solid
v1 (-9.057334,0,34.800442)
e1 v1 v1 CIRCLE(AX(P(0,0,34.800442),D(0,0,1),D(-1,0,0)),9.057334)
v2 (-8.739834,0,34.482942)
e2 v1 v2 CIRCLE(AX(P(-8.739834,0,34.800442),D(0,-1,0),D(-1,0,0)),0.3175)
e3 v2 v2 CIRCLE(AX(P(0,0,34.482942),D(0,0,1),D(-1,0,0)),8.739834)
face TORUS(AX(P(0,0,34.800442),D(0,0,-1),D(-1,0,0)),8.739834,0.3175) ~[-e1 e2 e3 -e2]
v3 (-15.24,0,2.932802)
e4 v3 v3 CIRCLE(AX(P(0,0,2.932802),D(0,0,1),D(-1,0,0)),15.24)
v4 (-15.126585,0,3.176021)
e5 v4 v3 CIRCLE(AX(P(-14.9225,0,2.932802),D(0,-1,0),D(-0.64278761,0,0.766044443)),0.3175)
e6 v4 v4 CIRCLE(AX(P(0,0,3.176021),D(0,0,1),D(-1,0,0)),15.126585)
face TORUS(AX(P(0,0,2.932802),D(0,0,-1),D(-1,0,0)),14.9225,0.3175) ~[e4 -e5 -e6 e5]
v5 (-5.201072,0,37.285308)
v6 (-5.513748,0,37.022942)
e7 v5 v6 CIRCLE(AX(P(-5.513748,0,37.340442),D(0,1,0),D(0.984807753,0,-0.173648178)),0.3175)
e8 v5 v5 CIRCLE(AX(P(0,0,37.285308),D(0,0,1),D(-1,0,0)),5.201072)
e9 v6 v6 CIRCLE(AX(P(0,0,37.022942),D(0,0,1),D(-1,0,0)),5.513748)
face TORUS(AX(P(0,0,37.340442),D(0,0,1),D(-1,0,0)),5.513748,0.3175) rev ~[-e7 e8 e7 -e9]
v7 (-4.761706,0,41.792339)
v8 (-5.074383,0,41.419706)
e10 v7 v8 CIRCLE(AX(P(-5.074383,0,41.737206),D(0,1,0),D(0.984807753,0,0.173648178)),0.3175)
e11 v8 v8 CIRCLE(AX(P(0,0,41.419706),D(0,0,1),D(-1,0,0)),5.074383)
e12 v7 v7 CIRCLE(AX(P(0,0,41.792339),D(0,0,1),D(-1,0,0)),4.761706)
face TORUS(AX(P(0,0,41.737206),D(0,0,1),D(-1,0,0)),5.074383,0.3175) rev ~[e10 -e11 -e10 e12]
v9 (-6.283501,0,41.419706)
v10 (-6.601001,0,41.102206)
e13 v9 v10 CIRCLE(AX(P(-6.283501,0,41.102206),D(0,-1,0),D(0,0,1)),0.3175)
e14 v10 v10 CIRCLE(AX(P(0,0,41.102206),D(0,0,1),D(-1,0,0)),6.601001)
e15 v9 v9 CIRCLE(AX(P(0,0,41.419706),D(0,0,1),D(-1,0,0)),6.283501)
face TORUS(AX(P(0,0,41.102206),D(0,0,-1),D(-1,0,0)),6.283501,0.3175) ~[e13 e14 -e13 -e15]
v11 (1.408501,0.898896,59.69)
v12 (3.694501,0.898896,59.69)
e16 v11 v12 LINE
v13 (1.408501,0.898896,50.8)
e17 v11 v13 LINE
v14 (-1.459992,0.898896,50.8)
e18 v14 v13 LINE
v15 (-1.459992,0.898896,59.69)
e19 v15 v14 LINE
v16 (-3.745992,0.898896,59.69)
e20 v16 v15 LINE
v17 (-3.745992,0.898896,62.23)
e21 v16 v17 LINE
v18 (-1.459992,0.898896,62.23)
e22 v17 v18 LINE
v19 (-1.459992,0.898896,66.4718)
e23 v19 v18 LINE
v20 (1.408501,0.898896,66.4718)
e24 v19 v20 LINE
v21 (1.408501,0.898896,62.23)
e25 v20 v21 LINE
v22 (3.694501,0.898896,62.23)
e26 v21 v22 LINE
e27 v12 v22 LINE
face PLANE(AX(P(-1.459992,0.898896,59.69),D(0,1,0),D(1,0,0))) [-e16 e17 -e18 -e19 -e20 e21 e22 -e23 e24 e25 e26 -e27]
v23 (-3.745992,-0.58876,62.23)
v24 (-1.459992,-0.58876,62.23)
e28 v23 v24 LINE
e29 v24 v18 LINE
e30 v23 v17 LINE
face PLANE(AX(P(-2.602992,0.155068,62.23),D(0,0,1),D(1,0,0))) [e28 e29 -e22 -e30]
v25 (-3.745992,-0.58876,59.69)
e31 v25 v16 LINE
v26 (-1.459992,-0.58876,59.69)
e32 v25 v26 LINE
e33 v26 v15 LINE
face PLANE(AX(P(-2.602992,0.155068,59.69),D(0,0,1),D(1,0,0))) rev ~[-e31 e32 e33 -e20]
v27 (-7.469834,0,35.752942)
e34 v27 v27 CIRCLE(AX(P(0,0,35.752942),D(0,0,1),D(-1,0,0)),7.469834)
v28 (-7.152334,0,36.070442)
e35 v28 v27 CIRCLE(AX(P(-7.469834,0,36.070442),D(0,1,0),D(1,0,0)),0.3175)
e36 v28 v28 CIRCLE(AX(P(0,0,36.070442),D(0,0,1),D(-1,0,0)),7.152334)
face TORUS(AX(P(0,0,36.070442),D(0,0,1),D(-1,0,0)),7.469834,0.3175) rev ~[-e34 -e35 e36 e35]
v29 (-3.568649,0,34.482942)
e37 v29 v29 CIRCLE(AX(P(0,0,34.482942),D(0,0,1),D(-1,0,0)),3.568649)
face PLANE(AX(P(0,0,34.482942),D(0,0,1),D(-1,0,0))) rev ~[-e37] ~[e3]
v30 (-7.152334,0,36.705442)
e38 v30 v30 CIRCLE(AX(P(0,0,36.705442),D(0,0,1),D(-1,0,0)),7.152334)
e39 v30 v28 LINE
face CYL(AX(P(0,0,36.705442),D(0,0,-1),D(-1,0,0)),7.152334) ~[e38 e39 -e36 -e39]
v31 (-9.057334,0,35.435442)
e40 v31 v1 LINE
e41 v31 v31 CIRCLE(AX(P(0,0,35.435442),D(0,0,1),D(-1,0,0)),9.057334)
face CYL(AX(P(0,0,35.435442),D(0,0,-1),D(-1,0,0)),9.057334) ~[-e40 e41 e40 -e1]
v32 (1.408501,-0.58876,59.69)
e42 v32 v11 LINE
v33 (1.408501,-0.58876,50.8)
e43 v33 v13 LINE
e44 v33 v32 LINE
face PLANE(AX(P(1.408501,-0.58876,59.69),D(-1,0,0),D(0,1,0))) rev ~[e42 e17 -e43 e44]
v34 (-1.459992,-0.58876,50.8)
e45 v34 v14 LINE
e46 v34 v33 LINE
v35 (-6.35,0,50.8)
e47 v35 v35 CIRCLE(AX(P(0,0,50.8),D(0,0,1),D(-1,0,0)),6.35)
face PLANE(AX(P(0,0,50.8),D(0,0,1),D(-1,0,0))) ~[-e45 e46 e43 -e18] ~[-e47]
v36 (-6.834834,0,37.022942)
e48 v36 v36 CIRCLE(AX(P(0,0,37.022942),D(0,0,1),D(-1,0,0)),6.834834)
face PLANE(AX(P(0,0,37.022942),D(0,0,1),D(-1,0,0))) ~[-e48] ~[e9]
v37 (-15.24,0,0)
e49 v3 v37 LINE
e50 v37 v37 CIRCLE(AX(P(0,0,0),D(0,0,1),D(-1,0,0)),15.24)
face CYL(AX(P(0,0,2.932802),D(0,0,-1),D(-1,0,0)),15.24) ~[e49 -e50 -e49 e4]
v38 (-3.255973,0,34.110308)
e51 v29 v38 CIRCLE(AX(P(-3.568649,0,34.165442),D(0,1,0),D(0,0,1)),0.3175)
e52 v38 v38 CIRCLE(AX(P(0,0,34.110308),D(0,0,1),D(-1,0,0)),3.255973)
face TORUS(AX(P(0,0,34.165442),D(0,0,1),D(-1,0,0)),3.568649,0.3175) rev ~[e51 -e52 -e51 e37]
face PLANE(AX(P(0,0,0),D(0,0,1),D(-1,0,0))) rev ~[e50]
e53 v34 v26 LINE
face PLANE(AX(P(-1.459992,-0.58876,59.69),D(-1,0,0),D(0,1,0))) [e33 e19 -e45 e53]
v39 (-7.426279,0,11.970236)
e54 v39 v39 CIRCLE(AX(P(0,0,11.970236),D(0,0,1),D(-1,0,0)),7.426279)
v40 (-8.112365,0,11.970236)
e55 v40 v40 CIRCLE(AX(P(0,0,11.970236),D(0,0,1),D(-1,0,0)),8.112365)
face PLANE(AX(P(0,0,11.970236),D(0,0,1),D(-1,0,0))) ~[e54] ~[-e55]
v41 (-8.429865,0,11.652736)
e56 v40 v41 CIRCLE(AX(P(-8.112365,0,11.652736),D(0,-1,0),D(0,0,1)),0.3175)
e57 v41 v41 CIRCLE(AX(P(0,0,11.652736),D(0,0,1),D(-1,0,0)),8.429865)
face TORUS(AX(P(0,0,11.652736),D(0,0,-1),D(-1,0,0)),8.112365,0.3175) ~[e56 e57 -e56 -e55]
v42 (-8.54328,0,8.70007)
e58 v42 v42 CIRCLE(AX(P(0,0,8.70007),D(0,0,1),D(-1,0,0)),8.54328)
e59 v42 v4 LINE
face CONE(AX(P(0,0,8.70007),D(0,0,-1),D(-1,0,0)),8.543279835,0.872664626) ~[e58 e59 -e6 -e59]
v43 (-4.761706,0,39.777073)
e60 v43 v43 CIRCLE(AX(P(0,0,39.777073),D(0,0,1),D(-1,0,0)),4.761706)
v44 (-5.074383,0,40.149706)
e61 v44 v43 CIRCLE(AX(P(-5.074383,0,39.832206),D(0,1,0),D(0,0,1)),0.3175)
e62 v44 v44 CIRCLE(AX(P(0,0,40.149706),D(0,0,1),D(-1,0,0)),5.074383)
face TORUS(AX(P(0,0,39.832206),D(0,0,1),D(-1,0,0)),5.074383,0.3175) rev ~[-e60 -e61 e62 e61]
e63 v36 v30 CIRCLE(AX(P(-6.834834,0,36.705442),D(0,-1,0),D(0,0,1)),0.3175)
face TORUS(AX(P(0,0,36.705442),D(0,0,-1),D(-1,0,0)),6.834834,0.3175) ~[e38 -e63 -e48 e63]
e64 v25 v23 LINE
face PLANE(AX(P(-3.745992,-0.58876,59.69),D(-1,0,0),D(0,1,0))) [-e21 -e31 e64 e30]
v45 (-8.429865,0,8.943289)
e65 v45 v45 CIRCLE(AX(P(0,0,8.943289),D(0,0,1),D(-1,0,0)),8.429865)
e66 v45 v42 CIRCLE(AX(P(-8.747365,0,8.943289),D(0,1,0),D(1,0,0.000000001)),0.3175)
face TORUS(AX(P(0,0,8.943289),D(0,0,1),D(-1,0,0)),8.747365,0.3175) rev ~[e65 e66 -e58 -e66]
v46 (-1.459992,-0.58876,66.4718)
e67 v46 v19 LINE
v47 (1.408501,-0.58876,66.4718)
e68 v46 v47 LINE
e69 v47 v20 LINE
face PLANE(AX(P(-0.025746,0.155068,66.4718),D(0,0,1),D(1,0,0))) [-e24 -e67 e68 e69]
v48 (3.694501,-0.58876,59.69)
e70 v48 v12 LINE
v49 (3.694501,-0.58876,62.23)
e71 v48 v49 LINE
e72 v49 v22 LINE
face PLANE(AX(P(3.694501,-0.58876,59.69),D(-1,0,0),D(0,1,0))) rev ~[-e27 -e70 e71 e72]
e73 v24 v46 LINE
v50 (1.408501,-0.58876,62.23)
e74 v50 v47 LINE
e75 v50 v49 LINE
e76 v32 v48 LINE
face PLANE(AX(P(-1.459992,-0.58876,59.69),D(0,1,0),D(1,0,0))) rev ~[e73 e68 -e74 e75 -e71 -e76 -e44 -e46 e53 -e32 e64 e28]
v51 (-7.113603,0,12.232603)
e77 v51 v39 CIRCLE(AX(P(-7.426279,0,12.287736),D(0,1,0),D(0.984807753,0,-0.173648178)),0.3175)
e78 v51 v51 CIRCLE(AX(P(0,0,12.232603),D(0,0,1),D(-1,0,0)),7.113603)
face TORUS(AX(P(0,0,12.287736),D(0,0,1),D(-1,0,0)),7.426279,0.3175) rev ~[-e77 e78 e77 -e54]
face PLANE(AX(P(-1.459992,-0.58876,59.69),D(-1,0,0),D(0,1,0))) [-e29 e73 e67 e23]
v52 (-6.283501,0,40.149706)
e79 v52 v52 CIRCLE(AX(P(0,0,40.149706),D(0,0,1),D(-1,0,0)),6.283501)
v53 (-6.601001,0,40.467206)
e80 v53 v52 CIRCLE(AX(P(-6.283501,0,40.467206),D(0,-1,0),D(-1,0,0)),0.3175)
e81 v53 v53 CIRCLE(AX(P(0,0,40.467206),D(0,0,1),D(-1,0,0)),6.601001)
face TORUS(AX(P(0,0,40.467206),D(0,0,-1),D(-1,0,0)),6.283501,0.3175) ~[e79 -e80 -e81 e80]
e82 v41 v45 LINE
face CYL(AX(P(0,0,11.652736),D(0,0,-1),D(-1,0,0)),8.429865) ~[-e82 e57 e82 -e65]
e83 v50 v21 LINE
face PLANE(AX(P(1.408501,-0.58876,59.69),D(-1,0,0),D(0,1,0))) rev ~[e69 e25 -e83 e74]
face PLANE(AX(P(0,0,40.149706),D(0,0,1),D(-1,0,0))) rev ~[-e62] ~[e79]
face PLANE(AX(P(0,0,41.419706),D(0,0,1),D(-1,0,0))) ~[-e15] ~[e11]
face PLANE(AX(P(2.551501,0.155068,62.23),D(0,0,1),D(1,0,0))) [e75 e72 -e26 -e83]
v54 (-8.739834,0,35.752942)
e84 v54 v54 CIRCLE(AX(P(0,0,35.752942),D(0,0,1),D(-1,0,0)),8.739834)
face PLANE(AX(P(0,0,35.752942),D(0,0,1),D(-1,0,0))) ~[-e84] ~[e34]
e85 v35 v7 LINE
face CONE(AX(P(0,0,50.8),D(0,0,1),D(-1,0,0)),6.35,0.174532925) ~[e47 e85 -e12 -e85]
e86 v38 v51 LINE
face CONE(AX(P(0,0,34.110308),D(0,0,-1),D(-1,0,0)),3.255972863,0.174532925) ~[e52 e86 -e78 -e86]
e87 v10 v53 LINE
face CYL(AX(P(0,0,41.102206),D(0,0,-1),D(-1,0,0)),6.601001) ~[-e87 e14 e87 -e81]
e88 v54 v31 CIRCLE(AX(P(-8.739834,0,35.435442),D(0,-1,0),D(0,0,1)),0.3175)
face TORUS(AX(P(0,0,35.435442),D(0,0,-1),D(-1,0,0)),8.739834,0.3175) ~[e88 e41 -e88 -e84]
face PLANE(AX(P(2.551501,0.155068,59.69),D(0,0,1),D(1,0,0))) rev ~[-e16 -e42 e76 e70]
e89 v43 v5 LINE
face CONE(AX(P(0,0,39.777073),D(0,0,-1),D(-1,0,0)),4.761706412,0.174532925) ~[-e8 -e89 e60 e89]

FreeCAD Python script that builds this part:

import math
import FreeCAD as App
import Part
import Sketcher

V = App.Vector
Q = App.Units.Quantity


def add_polygon(sketch, points):
    """Adds a closed chain of lines whose ends are joined by coincident constraints."""
    first, n = sketch.GeometryCount, len(points)
    for a, b in zip(points, points[1:] + points[:1]):
        sketch.addGeometry(Part.LineSegment(App.Vector(*a, 0), App.Vector(*b, 0)), False)
    for i in range(n):
        sketch.addConstraint(Sketcher.Constraint("Coincident", first + i, 2, first + (i + 1) % n, 1))

doc = App.newDocument("Part")
body = doc.addObject("PartDesign::Body", "Body")

# Sketch on XZ plane
sketch1 = body.newObject("Sketcher::SketchObject", "Sketch")
sketch1.AttachmentSupport = (doc.getObject("XZ_Plane"), [""])
sketch1.MapMode = "FlatFace"
sketch1.addGeometry(Part.LineSegment(V(-15.24, 0, 0), V(0, 0, 0)), False)
sketch1.addGeometry(Part.LineSegment(V(0, 0, 0), V(0, 50.8, 0)), False)
sketch1.addGeometry(Part.LineSegment(V(0, 50.8, 0), V(-6.35, 50.8, 0)), False)
sketch1.addGeometry(Part.LineSegment(V(-6.35, 50.8, 0), V(-4.76, 41.79, 0)), False)
sketch1.addGeometry(Part.ArcOfCircle(Part.Circle(V(-5.07, 41.74, 0), V(0, 0, 1), 0.32), math.radians(-90), math.radians(10)), False)
sketch1.addGeometry(Part.LineSegment(V(-5.07, 41.42, 0), V(-6.28, 41.42, 0)), False)
sketch1.addGeometry(Part.ArcOfCircle(Part.Circle(V(-6.28, 41.1, 0), V(0, 0, 1), 0.32), math.radians(90), math.radians(180)), False)
sketch1.addGeometry(Part.LineSegment(V(-6.6, 41.1, 0), V(-6.6, 40.47, 0)), False)
sketch1.addGeometry(Part.ArcOfCircle(Part.Circle(V(-6.28, 40.47, 0), V(0, 0, 1), 0.32), math.radians(180), math.radians(270)), False)
sketch1.addGeometry(Part.LineSegment(V(-6.28, 40.15, 0), V(-5.07, 40.15, 0)), False)
sketch1.addGeometry(Part.ArcOfCircle(Part.Circle(V(-5.07, 39.83, 0), V(0, 0, 1), 0.32), math.radians(-10), math.radians(90)), False)
sketch1.addGeometry(Part.LineSegment(V(-4.76, 39.78, 0), V(-5.2, 37.29, 0)), False)
sketch1.addGeometry(Part.ArcOfCircle(Part.Circle(V(-5.51, 37.34, 0), V(0, 0, 1), 0.32), math.radians(-90), math.radians(-10)), False)
sketch1.addGeometry(Part.LineSegment(V(-5.51, 37.02, 0), V(-6.83, 37.02, 0)), False)
sketch1.addGeometry(Part.ArcOfCircle(Part.Circle(V(-6.83, 36.71, 0), V(0, 0, 1), 0.32), math.radians(90), math.radians(180)), False)
sketch1.addGeometry(Part.LineSegment(V(-7.15, 36.71, 0), V(-7.15, 36.07, 0)), False)
sketch1.addGeometry(Part.ArcOfCircle(Part.Circle(V(-7.47, 36.07, 0), V(0, 0, 1), 0.32), math.radians(-90), math.radians(0)), False)
sketch1.addGeometry(Part.LineSegment(V(-7.47, 35.75, 0), V(-8.74, 35.75, 0)), False)
sketch1.addGeometry(Part.ArcOfCircle(Part.Circle(V(-8.74, 35.44, 0), V(0, 0, 1), 0.32), math.radians(90), math.radians(180)), False)
sketch1.addGeometry(Part.LineSegment(V(-9.06, 35.44, 0), V(-9.06, 34.8, 0)), False)
sketch1.addGeometry(Part.ArcOfCircle(Part.Circle(V(-8.74, 34.8, 0), V(0, 0, 1), 0.32), math.radians(180), math.radians(270)), False)
sketch1.addGeometry(Part.LineSegment(V(-8.74, 34.48, 0), V(-3.57, 34.48, 0)), False)
sketch1.addGeometry(Part.ArcOfCircle(Part.Circle(V(-3.57, 34.17, 0), V(0, 0, 1), 0.32), math.radians(-10), math.radians(90)), False)
sketch1.addGeometry(Part.LineSegment(V(-3.26, 34.11, 0), V(-7.11, 12.23, 0)), False)
sketch1.addGeometry(Part.ArcOfCircle(Part.Circle(V(-7.43, 12.29, 0), V(0, 0, 1), 0.32), math.radians(-90), math.radians(-10)), False)
sketch1.addGeometry(Part.LineSegment(V(-7.43, 11.97, 0), V(-8.11, 11.97, 0)), False)
sketch1.addGeometry(Part.ArcOfCircle(Part.Circle(V(-8.11, 11.65, 0), V(0, 0, 1), 0.32), math.radians(90), math.radians(180)), False)
sketch1.addGeometry(Part.LineSegment(V(-8.43, 11.65, 0), V(-8.43, 8.94, 0)), False)
sketch1.addGeometry(Part.ArcOfCircle(Part.Circle(V(-8.75, 8.94, 0), V(0, 0, 1), 0.32), math.radians(-50), math.radians(0)), False)
sketch1.addGeometry(Part.LineSegment(V(-8.54, 8.7, 0), V(-15.13, 3.18, 0)), False)
sketch1.addGeometry(Part.ArcOfCircle(Part.Circle(V(-14.92, 2.93, 0), V(0, 0, 1), 0.32), math.radians(130), math.radians(180)), False)
sketch1.addGeometry(Part.LineSegment(V(-15.24, 2.93, 0), V(-15.24, 0, 0)), False)
sketch1.addConstraint(Sketcher.Constraint("Coincident", 0, 2, 1, 1))
sketch1.addConstraint(Sketcher.Constraint("Coincident", 1, 2, 2, 1))
sketch1.addConstraint(Sketcher.Constraint("Coincident", 2, 2, 3, 1))
sketch1.addConstraint(Sketcher.Constraint("Tangent", 3, 2, 4, 2))
sketch1.addConstraint(Sketcher.Constraint("Tangent", 4, 1, 5, 1))
sketch1.addConstraint(Sketcher.Constraint("Tangent", 5, 2, 6, 1))
sketch1.addConstraint(Sketcher.Constraint("Tangent", 6, 2, 7, 1))
sketch1.addConstraint(Sketcher.Constraint("Tangent", 7, 2, 8, 1))
sketch1.addConstraint(Sketcher.Constraint("Tangent", 8, 2, 9, 1))
sketch1.addConstraint(Sketcher.Constraint("Tangent", 9, 2, 10, 2))
sketch1.addConstraint(Sketcher.Constraint("Tangent", 10, 1, 11, 1))
sketch1.addConstraint(Sketcher.Constraint("Tangent", 11, 2, 12, 2))
sketch1.addConstraint(Sketcher.Constraint("Tangent", 12, 1, 13, 1))
sketch1.addConstraint(Sketcher.Constraint("Tangent", 13, 2, 14, 1))
sketch1.addConstraint(Sketcher.Constraint("Tangent", 14, 2, 15, 1))
sketch1.addConstraint(Sketcher.Constraint("Tangent", 15, 2, 16, 2))
sketch1.addConstraint(Sketcher.Constraint("Tangent", 16, 1, 17, 1))
sketch1.addConstraint(Sketcher.Constraint("Tangent", 17, 2, 18, 1))
sketch1.addConstraint(Sketcher.Constraint("Tangent", 18, 2, 19, 1))
sketch1.addConstraint(Sketcher.Constraint("Tangent", 19, 2, 20, 1))
sketch1.addConstraint(Sketcher.Constraint("Tangent", 20, 2, 21, 1))
sketch1.addConstraint(Sketcher.Constraint("Tangent", 21, 2, 22, 2))
sketch1.addConstraint(Sketcher.Constraint("Tangent", 22, 1, 23, 1))
sketch1.addConstraint(Sketcher.Constraint("Tangent", 23, 2, 24, 2))
sketch1.addConstraint(Sketcher.Constraint("Tangent", 24, 1, 25, 1))
sketch1.addConstraint(Sketcher.Constraint("Tangent", 25, 2, 26, 1))
sketch1.addConstraint(Sketcher.Constraint("Tangent", 26, 2, 27, 1))
sketch1.addConstraint(Sketcher.Constraint("Tangent", 27, 2, 28, 2))
sketch1.addConstraint(Sketcher.Constraint("Tangent", 28, 1, 29, 1))
sketch1.addConstraint(Sketcher.Constraint("Tangent", 29, 2, 30, 1))
sketch1.addConstraint(Sketcher.Constraint("Tangent", 30, 2, 31, 1))
sketch1.addConstraint(Sketcher.Constraint("Coincident", 31, 2, 0, 1))
sketch1.addConstraint(Sketcher.Constraint("Horizontal", 0))
sketch1.addConstraint(Sketcher.Constraint("Vertical", 1))
sketch1.addConstraint(Sketcher.Constraint("Horizontal", 2))
sketch1.addConstraint(Sketcher.Constraint("Horizontal", 5))
sketch1.addConstraint(Sketcher.Constraint("Vertical", 7))
sketch1.addConstraint(Sketcher.Constraint("Horizontal", 9))
sketch1.addConstraint(Sketcher.Constraint("Horizontal", 13))
sketch1.addConstraint(Sketcher.Constraint("Vertical", 15))
sketch1.addConstraint(Sketcher.Constraint("Horizontal", 17))
sketch1.addConstraint(Sketcher.Constraint("Vertical", 19))
sketch1.addConstraint(Sketcher.Constraint("Horizontal", 21))
sketch1.addConstraint(Sketcher.Constraint("Horizontal", 25))
sketch1.addConstraint(Sketcher.Constraint("Vertical", 27))
sketch1.addConstraint(Sketcher.Constraint("Vertical", 31))
sketch1.addConstraint(Sketcher.Constraint("Coincident", 0, 2, -1, 1))
sketch1.addConstraint(Sketcher.Constraint("Equal", 4, 6))
sketch1.addConstraint(Sketcher.Constraint("Equal", 6, 8))
sketch1.addConstraint(Sketcher.Constraint("Equal", 8, 10))
sketch1.addConstraint(Sketcher.Constraint("Equal", 10, 12))
sketch1.addConstraint(Sketcher.Constraint("Equal", 12, 14))
sketch1.addConstraint(Sketcher.Constraint("Equal", 14, 16))
sketch1.addConstraint(Sketcher.Constraint("Equal", 16, 18))
sketch1.addConstraint(Sketcher.Constraint("Equal", 18, 20))
sketch1.addConstraint(Sketcher.Constraint("Equal", 20, 22))
sketch1.addConstraint(Sketcher.Constraint("Equal", 22, 24))
sketch1.addConstraint(Sketcher.Constraint("Equal", 24, 26))
sketch1.addConstraint(Sketcher.Constraint("Equal", 26, 28))
sketch1.addConstraint(Sketcher.Constraint("Equal", 28, 30))
sketch1.addConstraint(Sketcher.Constraint("Parallel", 11, 23))
sketch1.addConstraint(Sketcher.Constraint("Vertical", 4, 3, 10, 3))
sketch1.addConstraint(Sketcher.Constraint("Vertical", 3, 2, 10, 1))
sketch1.addConstraint(Sketcher.Constraint("Equal", 7, 15))
sketch1.addConstraint(Sketcher.Constraint("Equal", 15, 19))
sketch1.addConstraint(Sketcher.Constraint("DistanceY", 1, 1, 1, 2, Q("2 in")))
sketch1.addConstraint(Sketcher.Constraint("DistanceX", 0, 1, 0, 2, Q("0.6 in")))
sketch1.addConstraint(Sketcher.Constraint("Angle", 3, Q("-80 deg")))
sketch1.addConstraint(Sketcher.Constraint("Angle", 29, Q("-140 deg")))
sketch1.addConstraint(Sketcher.Constraint("DistanceX", 2, 2, 2, 1, Q("0.25 in")))
sketch1.addConstraint(Sketcher.Constraint("DistanceX", 17, 2, 17, 1, Q("0.05 in")))
sketch1.addConstraint(Sketcher.Constraint("Radius", 4, Q("0.0125 in")))
sketch1.addConstraint(Sketcher.Constraint("DistanceY", 20, 3, 12, 3, Q("0.1 in")))
sketch1.addConstraint(Sketcher.Constraint("DistanceY", 31, 2, 31, 1, 2.932802))
sketch1.addConstraint(Sketcher.Constraint("DistanceX", 5, 2, 5, 1, 1.209118))
sketch1.addConstraint(Sketcher.Constraint("DistanceX", 6, 3, -1, 1, 6.283501))
sketch1.addConstraint(Sketcher.Constraint("DistanceX", 12, 3, 22, 3, 1.945099))
sketch1.addConstraint(Sketcher.Constraint("DistanceY", 30, 3, 23, 2, 9.299801))
sketch1.addConstraint(Sketcher.Constraint("DistanceX", 13, 2, 13, 1, 1.321086))
sketch1.addConstraint(Sketcher.Constraint("DistanceX", 25, 2, 25, 1, 0.686086))
sketch1.addConstraint(Sketcher.Constraint("DistanceX", 12, 3, -1, 1, 5.513748))
revolution = body.newObject("PartDesign::Revolution", "Revolution")
revolution.Profile = sketch1
revolution.ReferenceAxis = (sketch1, ["V_Axis"])
revolution.Angle = 360

# Sketch on XY plane
sketch2 = body.newObject("Sketcher::SketchObject", "Sketch001")
sketch2.AttachmentSupport = (doc.getObject("XY_Plane"), [""])
sketch2.MapMode = "FlatFace"
sketch2.AttachmentOffset = App.Placement(V(0, 0, 2 * 25.4), App.Rotation())
add_polygon(sketch2, [(-1.5, 0.9), (-1.5, -0.6), (1.4, -0.6), (1.4, 0.9)])  # lines 0-3
sketch2.addConstraint(Sketcher.Constraint("Vertical", 0))
sketch2.addConstraint(Sketcher.Constraint("Horizontal", 1))
sketch2.addConstraint(Sketcher.Constraint("Vertical", 2))
sketch2.addConstraint(Sketcher.Constraint("Horizontal", 3))
sketch2.addConstraint(Sketcher.Constraint("DistanceX", -1, 1, 1, 2, 1.408501))
sketch2.addConstraint(Sketcher.Constraint("DistanceX", 1, 1, 1, 2, 2.868493))
sketch2.addConstraint(Sketcher.Constraint("DistanceY", 0, 2, 0, 1, 1.487656))
sketch2.addConstraint(Sketcher.Constraint("DistanceY", 0, 2, -1, 1, 0.58876))
pad1 = body.newObject("PartDesign::Pad", "Pad")
pad1.Profile = sketch2
pad1.Length = Q("0.35 in")

# Sketch on XY plane
sketch3 = body.newObject("Sketcher::SketchObject", "Sketch002")
sketch3.AttachmentSupport = (doc.getObject("XY_Plane"), [""])
sketch3.MapMode = "FlatFace"
sketch3.AttachmentOffset = App.Placement(V(0, 0, 2.35 * 25.4), App.Rotation())
add_polygon(sketch3, [(-1.5, 0.9), (-1.5, -0.6), (1.4, -0.6), (1.4, 0.9)])  # lines 0-3
sketch3.addConstraint(Sketcher.Constraint("Vertical", 0))
sketch3.addConstraint(Sketcher.Constraint("Horizontal", 1))
sketch3.addConstraint(Sketcher.Constraint("Vertical", 2))
sketch3.addConstraint(Sketcher.Constraint("Horizontal", 3))
sketch3.addConstraint(Sketcher.Constraint("DistanceX", -1, 1, 1, 2, 1.408501))
sketch3.addConstraint(Sketcher.Constraint("DistanceX", 1, 1, 1, 2, 2.868493))
sketch3.addConstraint(Sketcher.Constraint("DistanceY", 0, 2, 0, 1, 1.487656))
sketch3.addConstraint(Sketcher.Constraint("DistanceY", 0, 2, -1, 1, 0.58876))
pad2 = body.newObject("PartDesign::Pad", "Pad001")
pad2.Profile = sketch3
pad2.Length = Q("0.267 in")

# Sketch on XY plane
sketch4 = body.newObject("Sketcher::SketchObject", "Sketch003")
sketch4.AttachmentSupport = (doc.getObject("XY_Plane"), [""])
sketch4.MapMode = "FlatFace"
sketch4.AttachmentOffset = App.Placement(V(0, 0, 2.35 * 25.4), App.Rotation())
add_polygon(sketch4, [(1.4, 0.9), (1.4, -0.6), (3.7, -0.6), (3.7, 0.9)])  # lines 0-3
add_polygon(sketch4, [(-3.7, 0.9), (-3.7, -0.6), (-1.5, -0.6), (-1.5, 0.9)])  # lines 4-7
sketch4.addConstraint(Sketcher.Constraint("Vertical", 0))
sketch4.addConstraint(Sketcher.Constraint("Horizontal", 1))
sketch4.addConstraint(Sketcher.Constraint("Vertical", 2))
sketch4.addConstraint(Sketcher.Constraint("Horizontal", 3))
sketch4.addConstraint(Sketcher.Constraint("Vertical", 4))
sketch4.addConstraint(Sketcher.Constraint("Horizontal", 5))
sketch4.addConstraint(Sketcher.Constraint("Vertical", 6))
sketch4.addConstraint(Sketcher.Constraint("Horizontal", 7))
sketch4.addConstraint(Sketcher.Constraint("Horizontal", 1, 2, 4, 2))
sketch4.addConstraint(Sketcher.Constraint("Horizontal", 3, 2, 6, 2))
sketch4.addConstraint(Sketcher.Constraint("Equal", 3, 5))
sketch4.addConstraint(Sketcher.Constraint("DistanceX", 1, 1, 1, 2, Q("0.09 in")))
sketch4.addConstraint(Sketcher.Constraint("DistanceX", -1, 1, 0, 2, 1.408501))
sketch4.addConstraint(Sketcher.Constraint("DistanceY", 0, 2, 0, 1, 1.487656))
sketch4.addConstraint(Sketcher.Constraint("DistanceY", 0, 2, -1, 1, 0.58876))
sketch4.addConstraint(Sketcher.Constraint("DistanceX", 4, 2, -1, 1, 3.745992))
pad3 = body.newObject("PartDesign::Pad", "Pad002")
pad3.Profile = sketch4
pad3.Length = Q("0.1 in")

# Sketch on XZ plane
sketch5 = body.newObject("Sketcher::SketchObject", "Sketch004")
sketch5.AttachmentSupport = (doc.getObject("XZ_Plane"), [""])
sketch5.MapMode = "FlatFace"
sketch5.addGeometry(Part.LineSegment(V(-15.24, 0, 0), V(0, 0, 0)), False)
sketch5.addGeometry(Part.LineSegment(V(0, 0, 0), V(0, 50.8, 0)), False)
sketch5.addGeometry(Part.LineSegment(V(0, 50.8, 0), V(-6.35, 50.8, 0)), False)
sketch5.addGeometry(Part.LineSegment(V(-6.35, 50.8, 0), V(-4.76, 41.79, 0)), False)
sketch5.addGeometry(Part.ArcOfCircle(Part.Circle(V(-5.07, 41.74, 0), V(0, 0, 1), 0.32), math.radians(-90), math.radians(10)), False)
sketch5.addGeometry(Part.LineSegment(V(-5.07, 41.42, 0), V(-6.28, 41.42, 0)), False)
sketch5.addGeometry(Part.ArcOfCircle(Part.Circle(V(-6.28, 41.1, 0), V(0, 0, 1), 0.32), math.radians(90), math.radians(180)), False)
sketch5.addGeometry(Part.LineSegment(V(-6.6, 41.1, 0), V(-6.6, 40.47, 0)), False)
sketch5.addGeometry(Part.ArcOfCircle(Part.Circle(V(-6.28, 40.47, 0), V(0, 0, 1), 0.32), math.radians(180), math.radians(270)), False)
sketch5.addGeometry(Part.LineSegment(V(-6.28, 40.15, 0), V(-5.07, 40.15, 0)), False)
sketch5.addGeometry(Part.ArcOfCircle(Part.Circle(V(-5.07, 39.83, 0), V(0, 0, 1), 0.32), math.radians(-10), math.radians(90)), False)
sketch5.addGeometry(Part.LineSegment(V(-4.76, 39.78, 0), V(-5.2, 37.29, 0)), False)
sketch5.addGeometry(Part.ArcOfCircle(Part.Circle(V(-5.51, 37.34, 0), V(0, 0, 1), 0.32), math.radians(-90), math.radians(-10)), False)
sketch5.addGeometry(Part.LineSegment(V(-5.51, 37.02, 0), V(-6.83, 37.02, 0)), False)
sketch5.addGeometry(Part.ArcOfCircle(Part.Circle(V(-6.83, 36.71, 0), V(0, 0, 1), 0.32), math.radians(90), math.radians(180)), False)
sketch5.addGeometry(Part.LineSegment(V(-7.15, 36.71, 0), V(-7.15, 36.07, 0)), False)
sketch5.addGeometry(Part.ArcOfCircle(Part.Circle(V(-7.47, 36.07, 0), V(0, 0, 1), 0.32), math.radians(-90), math.radians(0)), False)
sketch5.addGeometry(Part.LineSegment(V(-7.47, 35.75, 0), V(-8.74, 35.75, 0)), False)
sketch5.addGeometry(Part.ArcOfCircle(Part.Circle(V(-8.74, 35.44, 0), V(0, 0, 1), 0.32), math.radians(90), math.radians(180)), False)
sketch5.addGeometry(Part.LineSegment(V(-9.06, 35.44, 0), V(-9.06, 34.8, 0)), False)
sketch5.addGeometry(Part.ArcOfCircle(Part.Circle(V(-8.74, 34.8, 0), V(0, 0, 1), 0.32), math.radians(180), math.radians(270)), False)
sketch5.addGeometry(Part.LineSegment(V(-8.74, 34.48, 0), V(-3.57, 34.48, 0)), False)
sketch5.addGeometry(Part.ArcOfCircle(Part.Circle(V(-3.57, 34.17, 0), V(0, 0, 1), 0.32), math.radians(-10), math.radians(90)), False)
sketch5.addGeometry(Part.LineSegment(V(-3.26, 34.11, 0), V(-7.11, 12.23, 0)), False)
sketch5.addGeometry(Part.ArcOfCircle(Part.Circle(V(-7.43, 12.29, 0), V(0, 0, 1), 0.32), math.radians(-90), math.radians(-10)), False)
sketch5.addGeometry(Part.LineSegment(V(-7.43, 11.97, 0), V(-8.11, 11.97, 0)), False)
sketch5.addGeometry(Part.ArcOfCircle(Part.Circle(V(-8.11, 11.65, 0), V(0, 0, 1), 0.32), math.radians(90), math.radians(180)), False)
sketch5.addGeometry(Part.LineSegment(V(-8.43, 11.65, 0), V(-8.43, 8.94, 0)), False)
sketch5.addGeometry(Part.ArcOfCircle(Part.Circle(V(-8.75, 8.94, 0), V(0, 0, 1), 0.32), math.radians(-50), math.radians(0)), False)
sketch5.addGeometry(Part.LineSegment(V(-8.54, 8.7, 0), V(-15.13, 3.18, 0)), False)
sketch5.addGeometry(Part.ArcOfCircle(Part.Circle(V(-14.92, 2.93, 0), V(0, 0, 1), 0.32), math.radians(130), math.radians(180)), False)
sketch5.addGeometry(Part.LineSegment(V(-15.24, 2.93, 0), V(-15.24, 0, 0)), False)
sketch5.addConstraint(Sketcher.Constraint("Coincident", 0, 2, 1, 1))
sketch5.addConstraint(Sketcher.Constraint("Coincident", 1, 2, 2, 1))
sketch5.addConstraint(Sketcher.Constraint("Coincident", 2, 2, 3, 1))
sketch5.addConstraint(Sketcher.Constraint("Tangent", 3, 2, 4, 2))
sketch5.addConstraint(Sketcher.Constraint("Tangent", 4, 1, 5, 1))
sketch5.addConstraint(Sketcher.Constraint("Tangent", 5, 2, 6, 1))
sketch5.addConstraint(Sketcher.Constraint("Tangent", 6, 2, 7, 1))
sketch5.addConstraint(Sketcher.Constraint("Tangent", 7, 2, 8, 1))
sketch5.addConstraint(Sketcher.Constraint("Tangent", 8, 2, 9, 1))
sketch5.addConstraint(Sketcher.Constraint("Tangent", 9, 2, 10, 2))
sketch5.addConstraint(Sketcher.Constraint("Tangent", 10, 1, 11, 1))
sketch5.addConstraint(Sketcher.Constraint("Tangent", 11, 2, 12, 2))
sketch5.addConstraint(Sketcher.Constraint("Tangent", 12, 1, 13, 1))
sketch5.addConstraint(Sketcher.Constraint("Tangent", 13, 2, 14, 1))
sketch5.addConstraint(Sketcher.Constraint("Tangent", 14, 2, 15, 1))
sketch5.addConstraint(Sketcher.Constraint("Tangent", 15, 2, 16, 2))
sketch5.addConstraint(Sketcher.Constraint("Tangent", 16, 1, 17, 1))
sketch5.addConstraint(Sketcher.Constraint("Tangent", 17, 2, 18, 1))
sketch5.addConstraint(Sketcher.Constraint("Tangent", 18, 2, 19, 1))
sketch5.addConstraint(Sketcher.Constraint("Tangent", 19, 2, 20, 1))
sketch5.addConstraint(Sketcher.Constraint("Tangent", 20, 2, 21, 1))
sketch5.addConstraint(Sketcher.Constraint("Tangent", 21, 2, 22, 2))
sketch5.addConstraint(Sketcher.Constraint("Tangent", 22, 1, 23, 1))
sketch5.addConstraint(Sketcher.Constraint("Tangent", 23, 2, 24, 2))
sketch5.addConstraint(Sketcher.Constraint("Tangent", 24, 1, 25, 1))
sketch5.addConstraint(Sketcher.Constraint("Tangent", 25, 2, 26, 1))
sketch5.addConstraint(Sketcher.Constraint("Tangent", 26, 2, 27, 1))
sketch5.addConstraint(Sketcher.Constraint("Tangent", 27, 2, 28, 2))
sketch5.addConstraint(Sketcher.Constraint("Tangent", 28, 1, 29, 1))
sketch5.addConstraint(Sketcher.Constraint("Tangent", 29, 2, 30, 1))
sketch5.addConstraint(Sketcher.Constraint("Tangent", 30, 2, 31, 1))
sketch5.addConstraint(Sketcher.Constraint("Coincident", 31, 2, 0, 1))
sketch5.addConstraint(Sketcher.Constraint("Horizontal", 0))
sketch5.addConstraint(Sketcher.Constraint("Vertical", 1))
sketch5.addConstraint(Sketcher.Constraint("Horizontal", 2))
sketch5.addConstraint(Sketcher.Constraint("Horizontal", 5))
sketch5.addConstraint(Sketcher.Constraint("Vertical", 7))
sketch5.addConstraint(Sketcher.Constraint("Horizontal", 9))
sketch5.addConstraint(Sketcher.Constraint("Horizontal", 13))
sketch5.addConstraint(Sketcher.Constraint("Vertical", 15))
sketch5.addConstraint(Sketcher.Constraint("Horizontal", 17))
sketch5.addConstraint(Sketcher.Constraint("Vertical", 19))
sketch5.addConstraint(Sketcher.Constraint("Horizontal", 21))
sketch5.addConstraint(Sketcher.Constraint("Horizontal", 25))
sketch5.addConstraint(Sketcher.Constraint("Vertical", 27))
sketch5.addConstraint(Sketcher.Constraint("Vertical", 31))
sketch5.addConstraint(Sketcher.Constraint("Coincident", 0, 2, -1, 1))
sketch5.addConstraint(Sketcher.Constraint("Equal", 4, 6))
sketch5.addConstraint(Sketcher.Constraint("Equal", 6, 8))
sketch5.addConstraint(Sketcher.Constraint("Equal", 8, 10))
sketch5.addConstraint(Sketcher.Constraint("Equal", 10, 12))
sketch5.addConstraint(Sketcher.Constraint("Equal", 12, 14))
sketch5.addConstraint(Sketcher.Constraint("Equal", 14, 16))
sketch5.addConstraint(Sketcher.Constraint("Equal", 16, 18))
sketch5.addConstraint(Sketcher.Constraint("Equal", 18, 20))
sketch5.addConstraint(Sketcher.Constraint("Equal", 20, 22))
sketch5.addConstraint(Sketcher.Constraint("Equal", 22, 24))
sketch5.addConstraint(Sketcher.Constraint("Equal", 24, 26))
sketch5.addConstraint(Sketcher.Constraint("Equal", 26, 28))
sketch5.addConstraint(Sketcher.Constraint("Equal", 28, 30))
sketch5.addConstraint(Sketcher.Constraint("Parallel", 11, 23))
sketch5.addConstraint(Sketcher.Constraint("Vertical", 4, 3, 10, 3))
sketch5.addConstraint(Sketcher.Constraint("Vertical", 3, 2, 10, 1))
sketch5.addConstraint(Sketcher.Constraint("Equal", 7, 15))
sketch5.addConstraint(Sketcher.Constraint("Equal", 15, 19))
sketch5.addConstraint(Sketcher.Constraint("DistanceY", 1, 1, 1, 2, Q("2 in")))
sketch5.addConstraint(Sketcher.Constraint("DistanceX", 0, 1, 0, 2, Q("0.6 in")))
sketch5.addConstraint(Sketcher.Constraint("Angle", 3, Q("-80 deg")))
sketch5.addConstraint(Sketcher.Constraint("Angle", 29, Q("-140 deg")))
sketch5.addConstraint(Sketcher.Constraint("DistanceX", 2, 2, 2, 1, Q("0.25 in")))
sketch5.addConstraint(Sketcher.Constraint("DistanceX", 17, 2, 17, 1, Q("0.05 in")))
sketch5.addConstraint(Sketcher.Constraint("Radius", 4, Q("0.0125 in")))
sketch5.addConstraint(Sketcher.Constraint("DistanceY", 20, 3, 12, 3, Q("0.1 in")))
sketch5.addConstraint(Sketcher.Constraint("DistanceY", 31, 2, 31, 1, 2.932802))
sketch5.addConstraint(Sketcher.Constraint("DistanceX", 5, 2, 5, 1, 1.209118))
sketch5.addConstraint(Sketcher.Constraint("DistanceX", 6, 3, -1, 1, 6.283501))
sketch5.addConstraint(Sketcher.Constraint("DistanceX", 12, 3, 22, 3, 1.945099))
sketch5.addConstraint(Sketcher.Constraint("DistanceY", 30, 3, 23, 2, 9.299801))
sketch5.addConstraint(Sketcher.Constraint("DistanceX", 13, 2, 13, 1, 1.321086))
sketch5.addConstraint(Sketcher.Constraint("DistanceX", 25, 2, 25, 1, 0.686086))
sketch5.addConstraint(Sketcher.Constraint("DistanceX", 12, 3, -1, 1, 5.513748))
revolution2 = body.newObject("PartDesign::Revolution", "Revolution001")
revolution2.Profile = sketch5
revolution2.ReferenceAxis = (sketch5, ["V_Axis"])
revolution2.Angle = 360

doc.recompute()
